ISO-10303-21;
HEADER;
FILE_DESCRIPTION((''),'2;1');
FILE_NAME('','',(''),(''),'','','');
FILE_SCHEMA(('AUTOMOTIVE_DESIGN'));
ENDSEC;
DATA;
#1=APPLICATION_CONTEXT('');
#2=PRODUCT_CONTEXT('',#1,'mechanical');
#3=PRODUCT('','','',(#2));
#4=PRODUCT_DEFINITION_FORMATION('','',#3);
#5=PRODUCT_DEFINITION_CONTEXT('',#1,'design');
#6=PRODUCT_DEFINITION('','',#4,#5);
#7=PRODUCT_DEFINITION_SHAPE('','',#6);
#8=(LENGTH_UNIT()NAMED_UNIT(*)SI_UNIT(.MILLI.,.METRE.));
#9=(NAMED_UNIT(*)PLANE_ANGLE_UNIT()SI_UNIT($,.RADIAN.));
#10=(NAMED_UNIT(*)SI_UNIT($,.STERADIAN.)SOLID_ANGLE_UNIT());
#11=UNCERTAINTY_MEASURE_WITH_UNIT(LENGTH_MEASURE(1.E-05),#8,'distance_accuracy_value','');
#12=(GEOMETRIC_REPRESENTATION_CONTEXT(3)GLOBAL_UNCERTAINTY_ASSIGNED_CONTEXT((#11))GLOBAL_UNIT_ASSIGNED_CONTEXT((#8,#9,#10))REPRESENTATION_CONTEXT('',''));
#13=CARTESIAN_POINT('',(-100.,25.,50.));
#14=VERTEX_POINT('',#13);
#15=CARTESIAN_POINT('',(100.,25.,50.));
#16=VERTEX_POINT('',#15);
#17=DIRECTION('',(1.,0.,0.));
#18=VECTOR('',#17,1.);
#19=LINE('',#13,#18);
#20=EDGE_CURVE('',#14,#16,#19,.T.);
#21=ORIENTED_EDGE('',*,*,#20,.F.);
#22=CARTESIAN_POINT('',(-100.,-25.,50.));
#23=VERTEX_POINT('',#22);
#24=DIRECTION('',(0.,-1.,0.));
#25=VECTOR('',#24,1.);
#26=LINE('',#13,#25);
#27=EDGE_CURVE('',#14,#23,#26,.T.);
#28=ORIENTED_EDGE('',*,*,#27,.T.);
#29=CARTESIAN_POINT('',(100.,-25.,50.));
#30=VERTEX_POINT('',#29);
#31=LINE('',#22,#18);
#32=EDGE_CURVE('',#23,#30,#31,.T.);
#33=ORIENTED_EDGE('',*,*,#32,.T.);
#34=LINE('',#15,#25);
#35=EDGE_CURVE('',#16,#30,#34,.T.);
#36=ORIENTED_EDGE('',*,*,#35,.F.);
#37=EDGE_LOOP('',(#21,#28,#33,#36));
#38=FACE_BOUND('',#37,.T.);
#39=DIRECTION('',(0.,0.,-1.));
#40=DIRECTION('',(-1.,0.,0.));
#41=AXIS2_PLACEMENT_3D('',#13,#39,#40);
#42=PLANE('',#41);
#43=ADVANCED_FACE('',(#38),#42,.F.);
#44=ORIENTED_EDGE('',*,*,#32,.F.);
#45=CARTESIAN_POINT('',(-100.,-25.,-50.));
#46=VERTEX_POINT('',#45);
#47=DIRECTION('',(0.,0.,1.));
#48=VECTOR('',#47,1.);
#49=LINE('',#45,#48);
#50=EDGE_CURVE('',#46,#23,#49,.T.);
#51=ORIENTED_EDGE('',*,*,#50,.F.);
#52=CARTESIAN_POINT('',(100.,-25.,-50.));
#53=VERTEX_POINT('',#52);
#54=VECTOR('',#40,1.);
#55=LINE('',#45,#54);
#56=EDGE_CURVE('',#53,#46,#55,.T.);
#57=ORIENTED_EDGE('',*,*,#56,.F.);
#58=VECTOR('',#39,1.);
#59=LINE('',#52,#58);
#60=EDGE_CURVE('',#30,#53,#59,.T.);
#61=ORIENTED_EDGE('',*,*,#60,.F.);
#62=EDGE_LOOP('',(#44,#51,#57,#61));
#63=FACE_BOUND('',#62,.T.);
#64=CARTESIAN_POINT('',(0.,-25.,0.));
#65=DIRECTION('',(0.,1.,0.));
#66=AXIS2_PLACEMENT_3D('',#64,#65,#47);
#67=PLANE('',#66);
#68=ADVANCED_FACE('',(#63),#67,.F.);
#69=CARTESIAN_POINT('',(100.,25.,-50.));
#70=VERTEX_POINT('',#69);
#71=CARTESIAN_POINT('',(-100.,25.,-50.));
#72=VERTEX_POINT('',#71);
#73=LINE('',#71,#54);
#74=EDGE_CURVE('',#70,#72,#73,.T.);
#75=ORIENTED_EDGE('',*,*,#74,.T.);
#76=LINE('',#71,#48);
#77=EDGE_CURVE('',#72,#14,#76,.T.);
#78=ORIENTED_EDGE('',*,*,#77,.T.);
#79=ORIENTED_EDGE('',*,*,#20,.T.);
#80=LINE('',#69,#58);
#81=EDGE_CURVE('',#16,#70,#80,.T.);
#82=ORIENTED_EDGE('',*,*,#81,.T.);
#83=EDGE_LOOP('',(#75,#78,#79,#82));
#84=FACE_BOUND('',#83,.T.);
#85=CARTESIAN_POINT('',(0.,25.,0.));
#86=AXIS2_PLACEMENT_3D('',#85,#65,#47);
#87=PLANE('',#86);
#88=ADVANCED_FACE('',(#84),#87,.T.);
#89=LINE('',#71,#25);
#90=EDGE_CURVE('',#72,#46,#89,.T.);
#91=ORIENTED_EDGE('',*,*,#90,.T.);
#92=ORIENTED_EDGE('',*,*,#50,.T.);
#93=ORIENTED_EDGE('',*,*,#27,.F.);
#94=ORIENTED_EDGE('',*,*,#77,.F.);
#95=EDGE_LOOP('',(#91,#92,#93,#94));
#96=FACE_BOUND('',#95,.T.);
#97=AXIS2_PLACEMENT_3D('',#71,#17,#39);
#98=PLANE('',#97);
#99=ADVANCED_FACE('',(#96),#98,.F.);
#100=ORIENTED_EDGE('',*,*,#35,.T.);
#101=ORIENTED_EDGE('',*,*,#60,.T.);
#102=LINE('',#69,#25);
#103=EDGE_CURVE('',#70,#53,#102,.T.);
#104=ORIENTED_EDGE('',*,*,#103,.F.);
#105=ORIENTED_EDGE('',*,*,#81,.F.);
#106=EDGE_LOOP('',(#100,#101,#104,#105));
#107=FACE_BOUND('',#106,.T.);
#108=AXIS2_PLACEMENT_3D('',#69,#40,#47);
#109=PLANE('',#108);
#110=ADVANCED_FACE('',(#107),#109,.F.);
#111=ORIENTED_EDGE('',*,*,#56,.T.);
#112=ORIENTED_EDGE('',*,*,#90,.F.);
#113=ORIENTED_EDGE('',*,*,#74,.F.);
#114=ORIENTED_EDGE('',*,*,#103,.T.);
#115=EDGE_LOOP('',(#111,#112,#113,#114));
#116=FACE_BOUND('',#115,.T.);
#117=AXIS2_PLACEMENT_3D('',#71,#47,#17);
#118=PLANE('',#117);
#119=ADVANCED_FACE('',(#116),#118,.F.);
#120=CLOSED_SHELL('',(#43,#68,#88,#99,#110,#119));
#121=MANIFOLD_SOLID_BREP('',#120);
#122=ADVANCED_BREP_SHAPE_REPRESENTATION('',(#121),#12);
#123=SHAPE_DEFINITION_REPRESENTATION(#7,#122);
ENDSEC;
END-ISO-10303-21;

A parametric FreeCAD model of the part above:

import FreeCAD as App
import Part
import Sketcher
Q = App.Units.Quantity


def add_polygon(sketch, points):
    """Adds a closed chain of lines whose ends are joined by coincident constraints."""
    first, n = sketch.GeometryCount, len(points)
    for a, b in zip(points, points[1:] + points[:1]):
        sketch.addGeometry(Part.LineSegment(App.Vector(*a, 0), App.Vector(*b, 0)), False)
    for i in range(n):
        sketch.addConstraint(Sketcher.Constraint("Coincident", first + i, 2, first + (i + 1) % n, 1))

doc = App.newDocument("Part")
body = doc.addObject("PartDesign::Body", "Body")

# Sketch on XZ plane
sketch1 = body.newObject("Sketcher::SketchObject", "Sketch")
sketch1.AttachmentSupport = (doc.getObject("XZ_Plane"), [""])
sketch1.MapMode = "FlatFace"
add_polygon(sketch1, [(-100, -50), (-100, 50), (100, 50), (100, -50)])  # lines 0-3
sketch1.addConstraint([
    Sketcher.Constraint("Vertical", 0),
    Sketcher.Constraint("Horizontal", 1),
    Sketcher.Constraint("Vertical", 2),
    Sketcher.Constraint("Horizontal", 3),
    Sketcher.Constraint("Symmetric", 0, 2, 2, 2, -1, 1),
    Sketcher.Constraint("DistanceX", 1, 1, 1, 2, Q("200 mm")),
    Sketcher.Constraint("DistanceY", 0, 1, 0, 2, Q("100 mm")),
])
pad1 = body.newObject("PartDesign::Pad", "Pad")
pad1.Profile = sketch1
pad1.Length = 50
pad1.Midplane = True

doc.recompute()
